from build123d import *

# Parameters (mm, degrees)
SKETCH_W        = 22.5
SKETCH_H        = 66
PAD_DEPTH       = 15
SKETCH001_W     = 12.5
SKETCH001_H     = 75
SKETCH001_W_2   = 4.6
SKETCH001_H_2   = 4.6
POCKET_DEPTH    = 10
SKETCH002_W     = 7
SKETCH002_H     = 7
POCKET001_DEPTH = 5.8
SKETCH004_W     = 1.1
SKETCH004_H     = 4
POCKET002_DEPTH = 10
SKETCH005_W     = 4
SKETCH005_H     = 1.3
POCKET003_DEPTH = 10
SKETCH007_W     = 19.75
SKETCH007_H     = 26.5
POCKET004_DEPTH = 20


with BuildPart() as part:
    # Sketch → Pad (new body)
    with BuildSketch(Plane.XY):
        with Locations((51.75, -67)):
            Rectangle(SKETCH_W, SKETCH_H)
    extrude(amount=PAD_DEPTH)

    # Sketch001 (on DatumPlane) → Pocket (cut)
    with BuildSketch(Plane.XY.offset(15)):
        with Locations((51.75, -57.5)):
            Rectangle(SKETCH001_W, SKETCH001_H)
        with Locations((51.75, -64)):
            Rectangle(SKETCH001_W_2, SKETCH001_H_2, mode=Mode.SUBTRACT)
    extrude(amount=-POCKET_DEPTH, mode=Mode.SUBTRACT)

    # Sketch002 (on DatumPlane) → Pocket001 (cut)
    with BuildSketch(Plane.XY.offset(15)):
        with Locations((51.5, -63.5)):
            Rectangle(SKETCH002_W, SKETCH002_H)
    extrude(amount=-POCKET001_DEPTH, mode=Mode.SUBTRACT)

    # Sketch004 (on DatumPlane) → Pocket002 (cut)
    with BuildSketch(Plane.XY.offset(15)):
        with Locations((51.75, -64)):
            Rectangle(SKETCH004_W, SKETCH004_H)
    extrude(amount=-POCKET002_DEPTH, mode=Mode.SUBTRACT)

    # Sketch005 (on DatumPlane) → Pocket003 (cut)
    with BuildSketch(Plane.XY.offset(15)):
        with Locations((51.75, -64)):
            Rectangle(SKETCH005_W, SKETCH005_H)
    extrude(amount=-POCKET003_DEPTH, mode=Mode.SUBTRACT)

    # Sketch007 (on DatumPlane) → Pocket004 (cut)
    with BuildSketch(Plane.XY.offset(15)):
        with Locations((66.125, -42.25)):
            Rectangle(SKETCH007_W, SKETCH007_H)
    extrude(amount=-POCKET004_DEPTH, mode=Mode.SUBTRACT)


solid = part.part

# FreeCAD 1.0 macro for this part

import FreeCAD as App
import Part
import Sketcher
from FreeCAD import Vector
Q = App.Units.Quantity


def add_polygon(sketch, points):
    """Adds a closed chain of lines whose ends are joined by coincident constraints."""
    first, n = sketch.GeometryCount, len(points)
    for a, b in zip(points, points[1:] + points[:1]):
        sketch.addGeometry(Part.LineSegment(App.Vector(*a, 0), App.Vector(*b, 0)), False)
    for i in range(n):
        sketch.addConstraint(Sketcher.Constraint("Coincident", first + i, 2, first + (i + 1) % n, 1))

doc = App.newDocument("Part")
body = doc.addObject("PartDesign::Body", "Body")

# Sketch on XY plane
sketch1 = body.newObject("Sketcher::SketchObject", "Sketch")
sketch1.AttachmentSupport = (doc.getObject("XY_Plane"), [""])
sketch1.MapMode = "FlatFace"
add_polygon(sketch1, [(40, -34), (40, -100), (63, -100), (63, -34)])  # lines 0-3
sketch1.addConstraint(Sketcher.Constraint("Vertical", 0))
sketch1.addConstraint(Sketcher.Constraint("Horizontal", 1))
sketch1.addConstraint(Sketcher.Constraint("Vertical", 2))
sketch1.addConstraint(Sketcher.Constraint("Horizontal", 3))
sketch1.addConstraint(Sketcher.Constraint("DistanceY", 0, 2, 0, 1, Q("66 mm")))
sketch1.addConstraint(Sketcher.Constraint("DistanceX", 1, 1, 1, 2, Q("22.5 mm")))
sketch1.addConstraint(Sketcher.Constraint("DistanceY", 0, 2, -1, 1, Q("100 mm")))
sketch1.addConstraint(Sketcher.Constraint("DistanceX", -1, 1, 1, 2, Q("63 mm")))
pad1 = body.newObject("PartDesign::Pad", "Pad")
pad1.Profile = sketch1
pad1.Length = 15

# Sketch on XY plane
sketch2 = body.newObject("Sketcher::SketchObject", "Sketch001")
sketch2.AttachmentSupport = (doc.getObject("XY_Plane"), [""])
sketch2.MapMode = "FlatFace"
sketch2.AttachmentOffset = App.Placement(Vector(0, 0, 15), App.Rotation())
add_polygon(sketch2, [(45.5, -20), (45.5, -95), (58, -95), (58, -20)])  # lines 0-3
add_polygon(sketch2, [(54, -66.3), (49.5, -66.3), (49.5, -61.7), (54, -61.7)])  # lines 4-7
sketch2.addConstraint(Sketcher.Constraint("Vertical", 0))
sketch2.addConstraint(Sketcher.Constraint("Horizontal", 1))
sketch2.addConstraint(Sketcher.Constraint("Vertical", 2))
sketch2.addConstraint(Sketcher.Constraint("Horizontal", 3))
sketch2.addConstraint(Sketcher.Constraint("Horizontal", 4))
sketch2.addConstraint(Sketcher.Constraint("Vertical", 5))
sketch2.addConstraint(Sketcher.Constraint("Horizontal", 6))
sketch2.addConstraint(Sketcher.Constraint("Vertical", 7))
sketch2.addConstraint(Sketcher.Constraint("Equal", 6, 5))
sketch2.addConstraint(Sketcher.Constraint("DistanceY", 0, 2, 0, 1, Q("75 mm")))
sketch2.addConstraint(Sketcher.Constraint("DistanceX", 1, 1, 1, 2, Q("12.5 mm")))
sketch2.addConstraint(Sketcher.Constraint("DistanceX", 4, 2, 4, 1, Q("4.6 mm")))
sketch2.addConstraint(Sketcher.Constraint("DistanceY", 0, 2, -1, 1, Q("95 mm")))
sketch2.addConstraint(Sketcher.Constraint("DistanceX", -1, 1, 1, 2, Q("58 mm")))
sketch2.addConstraint(Sketcher.Constraint("DistanceY", 4, 2, -1, 1, Q("66.3 mm")))
sketch2.addConstraint(Sketcher.Constraint("DistanceX", -1, 1, 4, 2, Q("49.45 mm")))
pocket1 = body.newObject("PartDesign::Pocket", "Pocket")
pocket1.Profile = sketch2
pocket1.Length = 10

# Sketch on XY plane
sketch3 = body.newObject("Sketcher::SketchObject", "Sketch002")
sketch3.AttachmentSupport = (doc.getObject("XY_Plane"), [""])
sketch3.MapMode = "FlatFace"
sketch3.AttachmentOffset = App.Placement(Vector(0, 0, 15), App.Rotation())
add_polygon(sketch3, [(48, -60), (48, -67), (55, -67), (55, -60)])  # lines 0-3
sketch3.addConstraint(Sketcher.Constraint("Vertical", 0))
sketch3.addConstraint(Sketcher.Constraint("Horizontal", 1))
sketch3.addConstraint(Sketcher.Constraint("Vertical", 2))
sketch3.addConstraint(Sketcher.Constraint("Horizontal", 3))
sketch3.addConstraint(Sketcher.Constraint("Equal", 3, 0))
sketch3.addConstraint(Sketcher.Constraint("DistanceX", 1, 1, 1, 2, Q("7 mm")))
sketch3.addConstraint(Sketcher.Constraint("DistanceX", -1, 1, 0, 2, Q("48 mm")))
sketch3.addConstraint(Sketcher.Constraint("DistanceY", 0, 2, -1, 1, Q("67 mm")))
pocket2 = body.newObject("PartDesign::Pocket", "Pocket001")
pocket2.Profile = sketch3
pocket2.Length = 5.8

# Sketch on XY plane
sketch4 = body.newObject("Sketcher::SketchObject", "Sketch003")
sketch4.AttachmentSupport = (doc.getObject("XY_Plane"), [""])
sketch4.MapMode = "FlatFace"
sketch4.AttachmentOffset = App.Placement(Vector(0, 0, 15), App.Rotation())
add_polygon(sketch4, [(51.2, -62), (51.2, -66), (52.3, -66), (52.3, -62)])  # lines 0-3
sketch4.addConstraint(Sketcher.Constraint("Vertical", 0))
sketch4.addConstraint(Sketcher.Constraint("Horizontal", 1))
sketch4.addConstraint(Sketcher.Constraint("Vertical", 2))
sketch4.addConstraint(Sketcher.Constraint("Horizontal", 3))
sketch4.addConstraint(Sketcher.Constraint("DistanceY", 0, 2, 0, 1, Q("4 mm")))
sketch4.addConstraint(Sketcher.Constraint("DistanceX", 1, 1, 1, 2, Q("1.1 mm")))
sketch4.addConstraint(Sketcher.Constraint("DistanceY", 0, 2, -1, 1, Q("66 mm")))
sketch4.addConstraint(Sketcher.Constraint("DistanceX", -1, 1, 0, 2, Q("51.2 mm")))
pocket3 = body.newObject("PartDesign::Pocket", "Pocket002")
pocket3.Profile = sketch4
pocket3.Length = 10

# Sketch on XY plane
sketch5 = body.newObject("Sketcher::SketchObject", "Sketch004")
sketch5.AttachmentSupport = (doc.getObject("XY_Plane"), [""])
sketch5.MapMode = "FlatFace"
sketch5.AttachmentOffset = App.Placement(Vector(0, 0, 15), App.Rotation())
add_polygon(sketch5, [(49.8, -63.4), (49.8, -64.7), (53.8, -64.7), (53.8, -63.4)])  # lines 0-3
sketch5.addConstraint(Sketcher.Constraint("Vertical", 0))
sketch5.addConstraint(Sketcher.Constraint("Horizontal", 1))
sketch5.addConstraint(Sketcher.Constraint("Vertical", 2))
sketch5.addConstraint(Sketcher.Constraint("Horizontal", 3))
sketch5.addConstraint(Sketcher.Constraint("DistanceX", 1, 1, 1, 2, Q("4 mm")))
sketch5.addConstraint(Sketcher.Constraint("DistanceY", 0, 2, 0, 1, Q("1.3 mm")))
sketch5.addConstraint(Sketcher.Constraint("DistanceX", -1, 1, 0, 2, Q("49.75 mm")))
sketch5.addConstraint(Sketcher.Constraint("DistanceY", 0, 2, -1, 1, Q("64.65 mm")))
pocket4 = body.newObject("PartDesign::Pocket", "Pocket003")
pocket4.Profile = sketch5
pocket4.Length = 10

# Sketch on XY plane
sketch6 = body.newObject("Sketcher::SketchObject", "Sketch005")
sketch6.AttachmentSupport = (doc.getObject("XY_Plane"), [""])
sketch6.MapMode = "FlatFace"
sketch6.AttachmentOffset = App.Placement(Vector(0, 0, 15), App.Rotation())
add_polygon(sketch6, [(56, -29), (56, -56), (76, -56), (76, -29)])  # lines 0-3
sketch6.addConstraint(Sketcher.Constraint("Vertical", 0))
sketch6.addConstraint(Sketcher.Constraint("Horizontal", 1))
sketch6.addConstraint(Sketcher.Constraint("Vertical", 2))
sketch6.addConstraint(Sketcher.Constraint("Horizontal", 3))
sketch6.addConstraint(Sketcher.Constraint("DistanceY", 0, 2, 0, 1, Q("26.5 mm")))
sketch6.addConstraint(Sketcher.Constraint("DistanceX", -1, 1, 1, 2, Q("76 mm")))
sketch6.addConstraint(Sketcher.Constraint("DistanceY", 2, 2, -1, 1, Q("29 mm")))
sketch6.addConstraint(Sketcher.Constraint("DistanceX", 1, 1, 1, 2, Q("19.75 mm")))
pocket5 = body.newObject("PartDesign::Pocket", "Pocket004")
pocket5.Profile = sketch6
pocket5.Length = 20

doc.recompute()
